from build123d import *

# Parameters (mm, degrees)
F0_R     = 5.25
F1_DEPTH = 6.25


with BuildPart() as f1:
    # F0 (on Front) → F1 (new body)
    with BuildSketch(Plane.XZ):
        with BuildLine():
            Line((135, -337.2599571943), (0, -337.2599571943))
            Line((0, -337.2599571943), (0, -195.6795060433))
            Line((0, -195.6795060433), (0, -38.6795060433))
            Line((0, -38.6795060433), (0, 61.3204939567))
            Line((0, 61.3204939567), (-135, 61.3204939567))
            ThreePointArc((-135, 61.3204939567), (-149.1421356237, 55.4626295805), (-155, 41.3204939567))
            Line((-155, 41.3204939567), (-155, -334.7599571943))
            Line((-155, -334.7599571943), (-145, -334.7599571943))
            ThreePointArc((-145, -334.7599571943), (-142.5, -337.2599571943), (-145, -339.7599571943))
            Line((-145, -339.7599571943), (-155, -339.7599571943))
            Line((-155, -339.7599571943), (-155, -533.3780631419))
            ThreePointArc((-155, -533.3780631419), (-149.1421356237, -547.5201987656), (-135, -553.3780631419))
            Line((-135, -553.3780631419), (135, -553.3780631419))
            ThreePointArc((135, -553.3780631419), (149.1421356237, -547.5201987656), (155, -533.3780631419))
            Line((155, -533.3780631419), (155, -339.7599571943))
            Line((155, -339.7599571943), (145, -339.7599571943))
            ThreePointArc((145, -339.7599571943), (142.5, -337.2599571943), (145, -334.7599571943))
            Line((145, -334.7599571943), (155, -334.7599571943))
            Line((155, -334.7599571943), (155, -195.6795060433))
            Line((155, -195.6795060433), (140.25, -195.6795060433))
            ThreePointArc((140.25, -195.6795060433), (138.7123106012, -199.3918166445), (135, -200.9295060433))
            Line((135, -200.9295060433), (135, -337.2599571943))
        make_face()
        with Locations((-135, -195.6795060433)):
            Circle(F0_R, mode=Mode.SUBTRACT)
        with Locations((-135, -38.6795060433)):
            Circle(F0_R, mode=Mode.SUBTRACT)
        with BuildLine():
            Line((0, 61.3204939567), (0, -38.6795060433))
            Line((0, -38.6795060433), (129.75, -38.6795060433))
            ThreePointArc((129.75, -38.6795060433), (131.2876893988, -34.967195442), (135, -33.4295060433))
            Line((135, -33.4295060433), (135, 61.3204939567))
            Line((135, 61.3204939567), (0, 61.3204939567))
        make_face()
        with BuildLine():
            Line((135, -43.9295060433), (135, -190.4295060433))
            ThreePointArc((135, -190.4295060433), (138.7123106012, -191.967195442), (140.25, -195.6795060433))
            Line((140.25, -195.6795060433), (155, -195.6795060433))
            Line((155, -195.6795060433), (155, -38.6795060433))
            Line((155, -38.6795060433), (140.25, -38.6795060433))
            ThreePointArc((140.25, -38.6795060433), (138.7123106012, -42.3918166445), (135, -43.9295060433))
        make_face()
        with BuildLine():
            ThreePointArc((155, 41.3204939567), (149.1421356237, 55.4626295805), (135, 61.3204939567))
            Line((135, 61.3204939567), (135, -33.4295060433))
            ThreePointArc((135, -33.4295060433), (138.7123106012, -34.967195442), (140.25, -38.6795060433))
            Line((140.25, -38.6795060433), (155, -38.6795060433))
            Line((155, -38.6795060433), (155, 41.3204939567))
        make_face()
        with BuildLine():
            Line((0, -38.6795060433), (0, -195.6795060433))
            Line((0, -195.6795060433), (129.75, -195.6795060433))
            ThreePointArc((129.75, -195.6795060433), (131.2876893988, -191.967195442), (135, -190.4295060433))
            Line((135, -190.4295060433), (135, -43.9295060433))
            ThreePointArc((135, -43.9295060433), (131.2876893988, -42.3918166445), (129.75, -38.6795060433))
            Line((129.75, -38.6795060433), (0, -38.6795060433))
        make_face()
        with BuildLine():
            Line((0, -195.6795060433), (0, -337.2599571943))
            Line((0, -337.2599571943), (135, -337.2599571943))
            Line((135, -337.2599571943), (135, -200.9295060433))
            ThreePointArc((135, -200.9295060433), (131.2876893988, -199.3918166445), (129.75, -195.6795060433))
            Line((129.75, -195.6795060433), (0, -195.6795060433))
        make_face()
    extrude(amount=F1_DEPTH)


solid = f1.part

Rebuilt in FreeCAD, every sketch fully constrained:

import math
import FreeCAD as App
import Part
import Sketcher
from FreeCAD import Vector

doc = App.newDocument("Part")
body = doc.addObject("PartDesign::Body", "Body")

sketch1 = doc.addObject("Sketcher::SketchObject", "Sketch")
body.addObject(sketch1)
sketch1.AttachmentSupport = (doc.XZ_Plane, [""])
sketch1.MapMode = "FlatFace"
sketch1.addGeometry([
    Part.LineSegment(Vector(135, 61.3, 0), Vector(-135, 61.3, 0)),
    Part.ArcOfCircle(Part.Circle(Vector(-135, 41.3, 0), Vector(0, 0, 1), 20), math.radians(90), math.radians(180)),
    Part.LineSegment(Vector(-155, 41.3, 0), Vector(-155, -334.8, 0)),
    Part.LineSegment(Vector(-155, -334.8, 0), Vector(-145, -334.8, 0)),
    Part.ArcOfCircle(Part.Circle(Vector(-145, -337.3, 0), Vector(0, 0, 1), 2.5), math.radians(-90), math.radians(90)),
    Part.LineSegment(Vector(-145, -339.8, 0), Vector(-155, -339.8, 0)),
    Part.LineSegment(Vector(-155, -339.8, 0), Vector(-155, -533.4, 0)),
    Part.ArcOfCircle(Part.Circle(Vector(-135, -533.4, 0), Vector(0, 0, 1), 20), math.radians(180), math.radians(270)),
    Part.LineSegment(Vector(-135, -553.4, 0), Vector(135, -553.4, 0)),
    Part.ArcOfCircle(Part.Circle(Vector(135, -533.4, 0), Vector(0, 0, 1), 20), math.radians(-90), math.radians(0)),
    Part.LineSegment(Vector(155, -533.4, 0), Vector(155, -339.8, 0)),
    Part.LineSegment(Vector(155, -339.8, 0), Vector(145, -339.8, 0)),
    Part.ArcOfCircle(Part.Circle(Vector(145, -337.3, 0), Vector(0, 0, 1), 2.5), math.radians(90), math.radians(270)),
    Part.LineSegment(Vector(145, -334.8, 0), Vector(155, -334.8, 0)),
    Part.LineSegment(Vector(155, -334.8, 0), Vector(155, 41.3, 0)),
    Part.ArcOfCircle(Part.Circle(Vector(135, 41.3, 0), Vector(0, 0, 1), 20), math.radians(0), math.radians(90)),
    Part.ArcOfCircle(Part.Circle(Vector(135, -195.7, 0), Vector(0, 0, 1), 5.2), math.radians(90), math.radians(180)),
    Part.ArcOfCircle(Part.Circle(Vector(135, -195.7, 0), Vector(0, 0, 1), 5.2), math.radians(0), math.radians(90)),
    Part.ArcOfCircle(Part.Circle(Vector(135, -195.7, 0), Vector(0, 0, 1), 5.2), math.radians(-90), math.radians(0)),
    Part.ArcOfCircle(Part.Circle(Vector(135, -195.7, 0), Vector(0, 0, 1), 5.2), math.radians(180), math.radians(270)),
    Part.ArcOfCircle(Part.Circle(Vector(135, -38.7, 0), Vector(0, 0, 1), 5.2), math.radians(90), math.radians(180)),
    Part.ArcOfCircle(Part.Circle(Vector(135, -38.7, 0), Vector(0, 0, 1), 5.2), math.radians(0), math.radians(90)),
    Part.ArcOfCircle(Part.Circle(Vector(135, -38.7, 0), Vector(0, 0, 1), 5.2), math.radians(-90), math.radians(0)),
    Part.ArcOfCircle(Part.Circle(Vector(135, -38.7, 0), Vector(0, 0, 1), 5.2), math.radians(180), math.radians(270)),
    Part.Circle(Vector(-135, -195.7, 0), Vector(0, 0, 1), 5.2),
    Part.Circle(Vector(-135, -38.7, 0), Vector(0, 0, 1), 5.2),
], False)
sketch1.addConstraint([
    Sketcher.Constraint("Tangent", 0, 2, 1, 1),
    Sketcher.Constraint("Tangent", 1, 2, 2, 1),
    Sketcher.Constraint("Coincident", 2, 2, 3, 1),
    Sketcher.Constraint("Tangent", 3, 2, 4, 2),
    Sketcher.Constraint("Tangent", 4, 1, 5, 1),
    Sketcher.Constraint("Coincident", 5, 2, 6, 1),
    Sketcher.Constraint("Tangent", 6, 2, 7, 1),
    Sketcher.Constraint("Tangent", 7, 2, 8, 1),
    Sketcher.Constraint("Tangent", 8, 2, 9, 1),
    Sketcher.Constraint("Tangent", 9, 2, 10, 1),
    Sketcher.Constraint("Coincident", 10, 2, 11, 1),
    Sketcher.Constraint("Tangent", 11, 2, 12, 2),
    Sketcher.Constraint("Tangent", 12, 1, 13, 1),
    Sketcher.Constraint("Coincident", 13, 2, 14, 1),
    Sketcher.Constraint("Tangent", 14, 2, 15, 1),
    Sketcher.Constraint("Tangent", 15, 2, 0, 1),
    Sketcher.Constraint("Tangent", 16, 1, 17, 2),
    Sketcher.Constraint("Tangent", 17, 1, 18, 2),
    Sketcher.Constraint("Tangent", 18, 1, 19, 2),
    Sketcher.Constraint("Tangent", 19, 1, 16, 2),
    Sketcher.Constraint("Tangent", 20, 1, 21, 2),
    Sketcher.Constraint("Tangent", 21, 1, 22, 2),
    Sketcher.Constraint("Tangent", 22, 1, 23, 2),
    Sketcher.Constraint("Tangent", 23, 1, 20, 2),
    Sketcher.Constraint("Horizontal", 0),
    Sketcher.Constraint("Vertical", 2),
    Sketcher.Constraint("Horizontal", 3),
    Sketcher.Constraint("Horizontal", 5),
    Sketcher.Constraint("Vertical", 6),
    Sketcher.Constraint("Horizontal", 8),
    Sketcher.Constraint("Vertical", 10),
    Sketcher.Constraint("Horizontal", 11),
    Sketcher.Constraint("Horizontal", 13),
    Sketcher.Constraint("Vertical", 14),
    Sketcher.Constraint("Equal", 1, 7),
    Sketcher.Constraint("Equal", 7, 9),
    Sketcher.Constraint("Equal", 4, 12),
    Sketcher.Constraint("Equal", 9, 15),
    Sketcher.Constraint("Equal", 16, 17),
    Sketcher.Constraint("Equal", 19, 20),
    Sketcher.Constraint("Equal", 20, 21),
    Sketcher.Constraint("Equal", 23, 24),
    Sketcher.Constraint("Equal", 24, 25),
    Sketcher.Constraint("Symmetric", 4, 3, 12, 3, -2),
    Sketcher.Constraint("Symmetric", 16, 3, 24, 3, -2),
    Sketcher.Constraint("Symmetric", 20, 3, 25, 3, -2),
    Sketcher.Constraint("Horizontal", 24, 3, 17, 1),
    Sketcher.Constraint("Horizontal", 17, 1, 19, 1),
    Sketcher.Constraint("Horizontal", 25, 3, 21, 1),
    Sketcher.Constraint("Horizontal", 21, 1, 23, 1),
    Sketcher.Constraint("Vertical", 1, 3, 7, 3),
    Sketcher.Constraint("Vertical", 9, 3, 15, 3),
    Sketcher.Constraint("Vertical", 15, 3, 16, 3),
    Sketcher.Constraint("Vertical", 19, 3, 20, 3),
    Sketcher.Constraint("Vertical", 7, 3, 24, 3),
    Sketcher.Constraint("Vertical", 15, 2, 16, 1),
    Sketcher.Constraint("Vertical", 16, 1, 18, 1),
    Sketcher.Constraint("Vertical", 18, 1, 20, 1),
    Sketcher.Constraint("Vertical", 20, 1, 22, 1),
    Sketcher.Constraint("Radius", 1, 20.0),
    Sketcher.Constraint("Diameter", 24, 10.5),
    Sketcher.Constraint("Radius", 4, 2.5),
    Sketcher.Constraint("DistanceX", 0, 2, 0, 1, 270.0),
    Sketcher.Constraint("DistanceX", 3, 1, 3, 2, 10.0),
    Sketcher.Constraint("DistanceY", 16, 3, 15, 3, 237.0),
    Sketcher.Constraint("DistanceY", 20, 3, 15, 3, 80.0),
    Sketcher.Constraint("DistanceY", 2, 2, 2, 1, 376.080451),
    Sketcher.Constraint("DistanceY", 6, 2, 6, 1, 193.618106),
    Sketcher.Constraint("DistanceY", -1, 1, 1, 3, 41.320494),
])
pad1 = doc.addObject("PartDesign::Pad", "Pad")
body.addObject(pad1)
pad1.Profile = sketch1
pad1.Length = 6.25

doc.recompute()
